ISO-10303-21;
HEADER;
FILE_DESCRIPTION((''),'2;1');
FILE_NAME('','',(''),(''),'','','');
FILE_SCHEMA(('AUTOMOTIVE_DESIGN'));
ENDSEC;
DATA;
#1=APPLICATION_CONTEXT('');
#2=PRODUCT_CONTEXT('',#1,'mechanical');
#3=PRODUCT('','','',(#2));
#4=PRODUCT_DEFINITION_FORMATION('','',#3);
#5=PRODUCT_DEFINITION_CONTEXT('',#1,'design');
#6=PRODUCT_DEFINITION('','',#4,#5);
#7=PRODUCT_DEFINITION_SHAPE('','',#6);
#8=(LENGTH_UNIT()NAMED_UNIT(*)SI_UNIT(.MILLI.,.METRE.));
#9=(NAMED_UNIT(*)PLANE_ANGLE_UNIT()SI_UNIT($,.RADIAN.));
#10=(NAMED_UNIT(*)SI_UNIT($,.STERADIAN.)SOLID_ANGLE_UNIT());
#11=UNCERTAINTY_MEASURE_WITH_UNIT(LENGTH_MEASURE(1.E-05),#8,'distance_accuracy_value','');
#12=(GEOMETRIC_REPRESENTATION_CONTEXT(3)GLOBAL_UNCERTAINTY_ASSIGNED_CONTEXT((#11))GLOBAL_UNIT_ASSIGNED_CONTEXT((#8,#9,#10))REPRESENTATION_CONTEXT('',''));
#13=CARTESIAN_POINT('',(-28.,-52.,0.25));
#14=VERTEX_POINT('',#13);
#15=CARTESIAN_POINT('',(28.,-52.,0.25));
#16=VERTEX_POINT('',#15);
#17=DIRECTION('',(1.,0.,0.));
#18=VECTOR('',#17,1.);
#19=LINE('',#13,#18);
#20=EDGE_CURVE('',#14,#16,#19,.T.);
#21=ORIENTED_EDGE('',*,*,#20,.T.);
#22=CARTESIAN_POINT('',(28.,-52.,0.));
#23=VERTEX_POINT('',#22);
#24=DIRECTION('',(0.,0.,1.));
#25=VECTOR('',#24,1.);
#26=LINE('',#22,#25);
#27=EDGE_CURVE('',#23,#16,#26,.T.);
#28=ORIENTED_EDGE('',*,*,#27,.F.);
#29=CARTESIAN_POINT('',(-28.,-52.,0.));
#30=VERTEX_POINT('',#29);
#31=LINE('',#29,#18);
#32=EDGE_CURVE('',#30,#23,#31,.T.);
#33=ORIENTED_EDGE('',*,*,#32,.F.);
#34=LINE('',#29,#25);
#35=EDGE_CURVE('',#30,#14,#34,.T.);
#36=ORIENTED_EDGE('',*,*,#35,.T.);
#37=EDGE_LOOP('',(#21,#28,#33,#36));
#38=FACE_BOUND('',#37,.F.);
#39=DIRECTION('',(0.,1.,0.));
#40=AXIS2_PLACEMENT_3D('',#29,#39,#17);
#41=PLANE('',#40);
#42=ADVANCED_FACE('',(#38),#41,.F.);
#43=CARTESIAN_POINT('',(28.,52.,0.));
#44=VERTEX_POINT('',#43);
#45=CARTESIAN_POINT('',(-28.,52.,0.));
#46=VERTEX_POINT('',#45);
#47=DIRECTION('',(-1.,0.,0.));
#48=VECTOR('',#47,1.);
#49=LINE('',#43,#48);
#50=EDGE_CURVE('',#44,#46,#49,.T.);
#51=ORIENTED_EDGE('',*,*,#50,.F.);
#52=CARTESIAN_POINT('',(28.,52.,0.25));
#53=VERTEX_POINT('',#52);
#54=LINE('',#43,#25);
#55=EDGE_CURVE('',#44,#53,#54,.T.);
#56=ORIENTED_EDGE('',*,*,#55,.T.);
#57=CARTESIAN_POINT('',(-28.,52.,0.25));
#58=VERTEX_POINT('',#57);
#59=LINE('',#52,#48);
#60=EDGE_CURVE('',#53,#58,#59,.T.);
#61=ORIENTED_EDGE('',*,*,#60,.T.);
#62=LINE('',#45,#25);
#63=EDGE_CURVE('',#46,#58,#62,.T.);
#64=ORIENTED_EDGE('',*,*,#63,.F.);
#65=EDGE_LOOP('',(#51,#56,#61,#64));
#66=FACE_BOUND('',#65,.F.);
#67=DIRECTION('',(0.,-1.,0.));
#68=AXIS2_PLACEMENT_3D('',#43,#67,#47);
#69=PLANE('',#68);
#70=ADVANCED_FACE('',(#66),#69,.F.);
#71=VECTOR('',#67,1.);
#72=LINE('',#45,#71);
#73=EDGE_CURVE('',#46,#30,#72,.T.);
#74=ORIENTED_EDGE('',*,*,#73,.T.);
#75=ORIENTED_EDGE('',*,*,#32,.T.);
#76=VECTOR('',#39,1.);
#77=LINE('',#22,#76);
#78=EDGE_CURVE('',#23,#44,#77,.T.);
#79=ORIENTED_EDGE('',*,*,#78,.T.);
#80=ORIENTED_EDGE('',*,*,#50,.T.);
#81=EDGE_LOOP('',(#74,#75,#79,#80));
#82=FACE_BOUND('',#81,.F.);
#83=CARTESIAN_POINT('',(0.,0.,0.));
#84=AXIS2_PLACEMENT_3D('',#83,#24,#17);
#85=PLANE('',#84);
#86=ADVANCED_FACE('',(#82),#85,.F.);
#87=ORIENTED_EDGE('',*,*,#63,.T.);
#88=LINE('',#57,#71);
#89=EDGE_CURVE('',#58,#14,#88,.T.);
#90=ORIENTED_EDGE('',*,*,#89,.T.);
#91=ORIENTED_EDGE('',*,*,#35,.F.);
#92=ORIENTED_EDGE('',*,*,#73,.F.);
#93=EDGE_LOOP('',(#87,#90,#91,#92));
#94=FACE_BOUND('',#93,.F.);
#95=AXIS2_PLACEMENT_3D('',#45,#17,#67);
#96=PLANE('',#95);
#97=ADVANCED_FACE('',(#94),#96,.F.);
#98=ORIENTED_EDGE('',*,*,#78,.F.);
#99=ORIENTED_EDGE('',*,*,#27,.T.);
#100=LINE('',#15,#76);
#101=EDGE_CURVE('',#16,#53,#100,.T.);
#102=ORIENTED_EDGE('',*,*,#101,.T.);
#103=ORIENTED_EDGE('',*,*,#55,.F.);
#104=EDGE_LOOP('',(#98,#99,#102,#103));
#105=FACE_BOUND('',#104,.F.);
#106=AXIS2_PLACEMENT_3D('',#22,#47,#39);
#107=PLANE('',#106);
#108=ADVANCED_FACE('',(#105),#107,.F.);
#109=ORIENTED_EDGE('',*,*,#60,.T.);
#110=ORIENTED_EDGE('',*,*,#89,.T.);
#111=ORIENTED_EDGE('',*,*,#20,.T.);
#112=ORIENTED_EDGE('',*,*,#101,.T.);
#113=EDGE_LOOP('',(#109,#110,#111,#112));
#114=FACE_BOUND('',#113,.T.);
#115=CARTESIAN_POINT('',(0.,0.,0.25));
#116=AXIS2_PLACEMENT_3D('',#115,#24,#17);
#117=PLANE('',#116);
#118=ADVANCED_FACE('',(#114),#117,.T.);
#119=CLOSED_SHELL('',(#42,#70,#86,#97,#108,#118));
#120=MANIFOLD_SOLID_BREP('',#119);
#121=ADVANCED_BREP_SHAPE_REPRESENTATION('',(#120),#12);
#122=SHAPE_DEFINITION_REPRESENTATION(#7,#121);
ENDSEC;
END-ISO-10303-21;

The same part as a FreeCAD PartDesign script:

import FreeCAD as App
import Part
import Sketcher
Q = App.Units.Quantity

doc = App.newDocument("Part")
body = doc.addObject("PartDesign::Body", "Body")

# Sketch on XY plane
sketch1 = body.newObject("Sketcher::SketchObject", "Sketch")
sketch1.AttachmentSupport = (doc.getObject("XY_Plane"), [""])
sketch1.MapMode = "FlatFace"
sketch1.addGeometry([
    Part.LineSegment(App.Vector(-28, 52, 0), App.Vector(-28, -52, 0)),
    Part.LineSegment(App.Vector(-28, -52, 0), App.Vector(28, -52, 0)),
    Part.LineSegment(App.Vector(28, -52, 0), App.Vector(28, 52, 0)),
    Part.LineSegment(App.Vector(28, 52, 0), App.Vector(-28, 52, 0)),
], False)
sketch1.addConstraint([
    Sketcher.Constraint("Coincident", 0, 2, 1, 1),
    Sketcher.Constraint("Coincident", 1, 2, 2, 1),
    Sketcher.Constraint("Coincident", 2, 2, 3, 1),
    Sketcher.Constraint("Coincident", 3, 2, 0, 1),
    Sketcher.Constraint("Vertical", 0),
    Sketcher.Constraint("Horizontal", 1),
    Sketcher.Constraint("Vertical", 2),
    Sketcher.Constraint("Horizontal", 3),
    Sketcher.Constraint("Symmetric", 0, 2, 2, 2, -1, 1),
    Sketcher.Constraint("DistanceX", 1, 1, 1, 2, Q("56 mm")),
    Sketcher.Constraint("DistanceY", 0, 2, 0, 1, Q("104 mm")),
])
pad1 = body.newObject("PartDesign::Pad", "Pad")
pad1.Profile = sketch1
pad1.Length = 0.25

doc.recompute()
